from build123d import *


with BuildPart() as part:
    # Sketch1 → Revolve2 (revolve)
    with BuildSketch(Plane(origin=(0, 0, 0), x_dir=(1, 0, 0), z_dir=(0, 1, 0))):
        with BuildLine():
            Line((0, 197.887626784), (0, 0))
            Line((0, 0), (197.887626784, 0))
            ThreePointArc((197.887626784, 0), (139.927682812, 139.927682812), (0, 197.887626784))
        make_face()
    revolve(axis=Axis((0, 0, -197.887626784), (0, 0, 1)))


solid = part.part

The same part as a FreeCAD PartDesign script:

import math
import FreeCAD as App
import Part
import Sketcher
from FreeCAD import Vector
Q = App.Units.Quantity

doc = App.newDocument("Part")
body = doc.addObject("PartDesign::Body", "Body")

sketch1 = body.newObject("Sketcher::SketchObject", "Sketch")
sketch1.AttachmentSupport = (doc.getObject("XZ_Plane"), [""])
sketch1.MapMode = "FlatFace"
sketch1.addGeometry([
    Part.LineSegment(Vector(0, -198, 0), Vector(0, 0, 0)),
    Part.LineSegment(Vector(0, 0, 0), Vector(198, 0, 0)),
    Part.ArcOfCircle(Part.Circle(Vector(0, 0, 0), Vector(0, 0, 1), 198), math.radians(-90), math.radians(0)),
], False)
sketch1.addConstraint([
    Sketcher.Constraint("Coincident", 0, 2, 1, 1),
    Sketcher.Constraint("Coincident", 1, 2, 2, 2),
    Sketcher.Constraint("Coincident", 2, 1, 0, 1),
    Sketcher.Constraint("Vertical", 0),
    Sketcher.Constraint("Horizontal", 1),
    Sketcher.Constraint("Coincident", 2, 3, -1, 1),
    Sketcher.Constraint("Coincident", 0, 2, -1, 1),
    Sketcher.Constraint("Radius", 2, Q("197.887627 mm")),
])
revolution = body.newObject("PartDesign::Revolution", "Revolution")
revolution.Profile = sketch1
revolution.ReferenceAxis = (sketch1, ["V_Axis"])
revolution.Angle = 360

doc.recompute()
